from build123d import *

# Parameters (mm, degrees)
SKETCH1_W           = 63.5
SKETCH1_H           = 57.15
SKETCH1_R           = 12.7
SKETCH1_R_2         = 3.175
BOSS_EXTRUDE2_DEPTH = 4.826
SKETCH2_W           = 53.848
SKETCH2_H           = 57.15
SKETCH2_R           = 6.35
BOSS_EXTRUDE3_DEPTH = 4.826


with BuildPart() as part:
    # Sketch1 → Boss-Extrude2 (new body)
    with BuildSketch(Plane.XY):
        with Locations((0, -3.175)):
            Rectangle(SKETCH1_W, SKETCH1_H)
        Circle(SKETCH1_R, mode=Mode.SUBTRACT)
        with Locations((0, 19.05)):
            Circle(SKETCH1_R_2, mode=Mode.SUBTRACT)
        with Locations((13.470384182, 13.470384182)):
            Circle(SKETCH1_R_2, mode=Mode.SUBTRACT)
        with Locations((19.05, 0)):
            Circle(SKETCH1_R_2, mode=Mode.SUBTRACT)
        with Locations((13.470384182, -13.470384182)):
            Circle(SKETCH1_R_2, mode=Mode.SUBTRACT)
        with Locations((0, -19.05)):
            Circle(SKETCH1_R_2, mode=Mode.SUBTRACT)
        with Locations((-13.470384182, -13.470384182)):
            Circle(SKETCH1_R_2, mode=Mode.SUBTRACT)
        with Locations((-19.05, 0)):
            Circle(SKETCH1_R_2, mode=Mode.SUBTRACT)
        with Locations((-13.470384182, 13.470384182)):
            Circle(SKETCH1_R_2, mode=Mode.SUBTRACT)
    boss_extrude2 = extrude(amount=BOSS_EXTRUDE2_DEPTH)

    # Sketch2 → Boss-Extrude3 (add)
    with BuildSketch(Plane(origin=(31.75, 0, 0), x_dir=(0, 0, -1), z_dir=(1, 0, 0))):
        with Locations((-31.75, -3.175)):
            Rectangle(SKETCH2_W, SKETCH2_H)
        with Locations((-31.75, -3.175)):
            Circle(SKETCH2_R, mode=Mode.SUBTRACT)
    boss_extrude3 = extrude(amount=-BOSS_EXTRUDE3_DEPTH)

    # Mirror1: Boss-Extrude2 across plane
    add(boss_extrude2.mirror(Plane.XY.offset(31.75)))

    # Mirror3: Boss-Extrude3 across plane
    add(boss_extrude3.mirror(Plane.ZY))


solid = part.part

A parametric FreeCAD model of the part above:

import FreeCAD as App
import Part
import Sketcher
Q = App.Units.Quantity


def add_polygon(sketch, points):
    """Adds a closed chain of lines whose ends are joined by coincident constraints."""
    first, n = sketch.GeometryCount, len(points)
    for a, b in zip(points, points[1:] + points[:1]):
        sketch.addGeometry(Part.LineSegment(App.Vector(*a, 0), App.Vector(*b, 0)), False)
    for i in range(n):
        sketch.addConstraint(Sketcher.Constraint("Coincident", first + i, 2, first + (i + 1) % n, 1))

doc = App.newDocument("Part")
body = doc.addObject("PartDesign::Body", "Body")

sketch1 = body.newObject("Sketcher::SketchObject", "Sketch")
sketch1.AttachmentSupport = (doc.getObject("XY_Plane"), [""])
sketch1.MapMode = "FlatFace"
add_polygon(sketch1, [(-31.8, 25.4), (-31.8, -31.8), (31.8, -31.8), (31.8, 25.4)])
sketch1.addGeometry(Part.Circle(App.Vector(-13.5, -13.5, 0), App.Vector(0, 0, 1), 3.2), False)
sketch1.addGeometry(Part.Circle(App.Vector(0, -19.1, 0), App.Vector(0, 0, 1), 3.2), False)
sketch1.addGeometry(Part.Circle(App.Vector(13.5, -13.5, 0), App.Vector(0, 0, 1), 3.2), False)
sketch1.addGeometry(Part.Circle(App.Vector(-19.1, 0, 0), App.Vector(0, 0, 1), 3.2), False)
sketch1.addGeometry(Part.Circle(App.Vector(-13.5, 13.5, 0), App.Vector(0, 0, 1), 3.2), False)
sketch1.addGeometry(Part.Circle(App.Vector(0, 0, 0), App.Vector(0, 0, 1), 12.7), False)
sketch1.addGeometry(Part.Circle(App.Vector(19.1, 0, 0), App.Vector(0, 0, 1), 3.2), False)
sketch1.addGeometry(Part.Circle(App.Vector(0, 19.1, 0), App.Vector(0, 0, 1), 3.2), False)
sketch1.addGeometry(Part.Circle(App.Vector(13.5, 13.5, 0), App.Vector(0, 0, 1), 3.2), False)
sketch1.addConstraint([
    Sketcher.Constraint("Vertical", 0),
    Sketcher.Constraint("Horizontal", 1),
    Sketcher.Constraint("Vertical", 2),
    Sketcher.Constraint("Horizontal", 3),
    Sketcher.Constraint("Coincident", 9, 3, -1, 1),
    Sketcher.Constraint("Equal", 4, 5),
    Sketcher.Constraint("Equal", 5, 6),
    Sketcher.Constraint("Equal", 6, 7),
    Sketcher.Constraint("Equal", 7, 8),
    Sketcher.Constraint("Equal", 8, 10),
    Sketcher.Constraint("Equal", 10, 11),
    Sketcher.Constraint("Equal", 11, 12),
    Sketcher.Constraint("Symmetric", 6, 3, 8, 3, -1, 1),
    Sketcher.Constraint("Symmetric", 7, 3, 10, 3, -1, 1),
    Sketcher.Constraint("Symmetric", 5, 3, 11, 3, -1, 1),
    Sketcher.Constraint("Symmetric", 4, 3, 12, 3, -1, 1),
    Sketcher.Constraint("Symmetric", 4, 3, 6, 3, -2),
    Sketcher.Constraint("PointOnObject", 5, 3, -2),
    Sketcher.Constraint("PointOnObject", 7, 3, -1),
    Sketcher.Constraint("Diameter", 9, Q("1 in")),
    Sketcher.Constraint("Diameter", 4, Q("0.25 in")),
    Sketcher.Constraint("DistanceX", 1, 1, 1, 2, Q("2.5 in")),
    Sketcher.Constraint("DistanceY", -1, 1, 2, 2, Q("1 in")),
    Sketcher.Constraint("DistanceY", 0, 2, 0, 1, Q("2.25 in")),
    Sketcher.Constraint("DistanceY", 0, 2, 5, 3, Q("0.5 in")),
    Sketcher.Constraint("DistanceX", 0, 2, 7, 3, Q("0.5 in")),
    Sketcher.Constraint("DistanceX", 10, 3, 1, 2, Q("0.5 in")),
    Sketcher.Constraint("DistanceX", 4, 3, 6, 3, 26.940768),
    Sketcher.Constraint("DistanceY", 4, 3, 8, 3, 26.940768),
])
pad1 = body.newObject("PartDesign::Pad", "Pad")
pad1.Profile = sketch1
pad1.Length = Q("0.19 in")

sketch2 = body.newObject("Sketcher::SketchObject", "Sketch001")
sketch2.AttachmentSupport = (doc.getObject("YZ_Plane"), [""])
sketch2.MapMode = "FlatFace"
sketch2.AttachmentOffset = App.Placement(App.Vector(0, 0, 1.25 * 25.4), App.Rotation())
add_polygon(sketch2, [(25, 59), (-32, 59), (-32, 5), (25, 5)])
sketch2.addGeometry(Part.Circle(App.Vector(-3, 32, 0), App.Vector(0, 0, 1), 6), False)
sketch2.addConstraint([
    Sketcher.Constraint("Horizontal", 0),
    Sketcher.Constraint("Vertical", 1),
    Sketcher.Constraint("Horizontal", 2),
    Sketcher.Constraint("Vertical", 3),
    Sketcher.Constraint("Diameter", 4, Q("0.5 in")),
    Sketcher.Constraint("DistanceX", -1, 1, 2, 2, Q("1 in")),
    Sketcher.Constraint("DistanceX", 0, 2, 0, 1, Q("2.25 in")),
    Sketcher.Constraint("DistanceY", 1, 2, 1, 1, Q("2.12 in")),
    Sketcher.Constraint("DistanceY", -1, 1, 4, 3, Q("1.25 in")),
    Sketcher.Constraint("DistanceY", -1, 1, 0, 2, Q("2.31 in")),
    Sketcher.Constraint("DistanceX", 4, 3, -1, 1, Q("0.125 in")),
])
pad2 = body.newObject("PartDesign::Pad", "Pad001")
pad2.Profile = sketch2
pad2.Length = Q("0.19 in")
pad2.Reversed = True
doc.recompute()

datumplane = body.newObject("PartDesign::Plane", "DatumPlane")
datumplane.AttachmentSupport = (doc.getObject("XY_Plane"), [""])
datumplane.MapMode = "FlatFace"
datumplane.AttachmentOffset = App.Placement(App.Vector(0, 0, 1.25 * 25.4), App.Rotation())
mirrored = body.newObject("PartDesign::Mirrored", "Mirrored")
mirrored.Originals = [pad1]
mirrored.MirrorPlane = (datumplane, [""])
body.Tip = mirrored
doc.recompute()

mirrored2 = body.newObject("PartDesign::Mirrored", "Mirrored001")
mirrored2.Originals = [pad2]
mirrored2.MirrorPlane = (doc.getObject("YZ_Plane"), [""])
body.Tip = mirrored2

doc.recompute()
